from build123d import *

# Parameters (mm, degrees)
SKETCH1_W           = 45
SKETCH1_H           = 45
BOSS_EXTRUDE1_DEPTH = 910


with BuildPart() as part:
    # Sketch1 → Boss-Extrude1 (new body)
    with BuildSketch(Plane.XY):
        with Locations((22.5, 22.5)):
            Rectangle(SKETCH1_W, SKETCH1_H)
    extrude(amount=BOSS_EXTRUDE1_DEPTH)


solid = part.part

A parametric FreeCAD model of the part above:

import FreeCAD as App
import Part
import Sketcher

V = App.Vector

doc = App.newDocument("Part")
params = doc.addObject("Spreadsheet::Sheet", "Params")
for row, (alias, value) in enumerate([
    ("sketch1_width", "45 mm"),
    ("pad1_length", "910 mm"),
], start=1):
    params.set(f"A{row}", alias)
    params.set(f"B{row}", "=" + value)
    params.setAlias(f"B{row}", alias)

body = doc.addObject("PartDesign::Body", "Body")

sketch1 = body.newObject("Sketcher::SketchObject", "Sketch")
sketch1.AttachmentSupport = (doc.getObject("XY_Plane"), [""])
sketch1.MapMode = "FlatFace"
sketch1.addGeometry(Part.LineSegment(V(0, 45, 0), V(0, 0, 0)), False)
sketch1.addGeometry(Part.LineSegment(V(0, 0, 0), V(45, 0, 0)), False)
sketch1.addGeometry(Part.LineSegment(V(45, 0, 0), V(45, 45, 0)), False)
sketch1.addGeometry(Part.LineSegment(V(45, 45, 0), V(0, 45, 0)), False)
sketch1.addConstraint(Sketcher.Constraint("Coincident", 0, 2, 1, 1))
sketch1.addConstraint(Sketcher.Constraint("Coincident", 1, 2, 2, 1))
sketch1.addConstraint(Sketcher.Constraint("Coincident", 2, 2, 3, 1))
sketch1.addConstraint(Sketcher.Constraint("Coincident", 3, 2, 0, 1))
sketch1.addConstraint(Sketcher.Constraint("Vertical", 0))
sketch1.addConstraint(Sketcher.Constraint("Horizontal", 1))
sketch1.addConstraint(Sketcher.Constraint("Vertical", 2))
sketch1.addConstraint(Sketcher.Constraint("Horizontal", 3))
sketch1.addConstraint(Sketcher.Constraint("Coincident", 0, 2, -1, 1))
sketch1.addConstraint(Sketcher.Constraint("Equal", 3, 0))
sketch1.addConstraint(Sketcher.Constraint("DistanceX", 1, 1, 1, 2, 45.0))
sketch1.setExpression("Constraints[10]", "Params.sketch1_width")
pad1 = body.newObject("PartDesign::Pad", "Pad")
pad1.Profile = sketch1
pad1.setExpression("Length", "Params.pad1_length")

doc.recompute()
